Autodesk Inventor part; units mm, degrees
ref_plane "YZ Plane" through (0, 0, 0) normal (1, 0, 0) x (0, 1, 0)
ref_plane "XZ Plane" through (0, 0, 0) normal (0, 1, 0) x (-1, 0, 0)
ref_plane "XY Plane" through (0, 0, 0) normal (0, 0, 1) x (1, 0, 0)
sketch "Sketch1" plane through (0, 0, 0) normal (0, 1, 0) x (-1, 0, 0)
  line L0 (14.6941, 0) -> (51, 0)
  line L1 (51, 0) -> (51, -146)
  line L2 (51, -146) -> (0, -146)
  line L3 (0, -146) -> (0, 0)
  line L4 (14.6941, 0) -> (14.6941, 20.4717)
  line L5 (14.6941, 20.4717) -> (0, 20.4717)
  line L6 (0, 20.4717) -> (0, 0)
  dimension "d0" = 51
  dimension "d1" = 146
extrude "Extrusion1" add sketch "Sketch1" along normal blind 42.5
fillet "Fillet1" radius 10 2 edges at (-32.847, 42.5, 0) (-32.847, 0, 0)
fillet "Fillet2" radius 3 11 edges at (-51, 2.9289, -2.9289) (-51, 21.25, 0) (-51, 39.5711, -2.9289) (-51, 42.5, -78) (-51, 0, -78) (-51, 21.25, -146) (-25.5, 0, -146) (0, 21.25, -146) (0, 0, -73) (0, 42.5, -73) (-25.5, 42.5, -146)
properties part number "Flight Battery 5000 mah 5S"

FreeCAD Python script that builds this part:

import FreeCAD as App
import Part
import Sketcher
from FreeCAD import Vector


def edges_at(feature, points):
    """Names of the edges that pass closest to the given points."""
    edges = feature.Shape.Edges
    near = lambda p: min(range(len(edges)), key=lambda i: edges[i].distToShape(Part.Vertex(*p))[0])
    return sorted({f"Edge{near(p) + 1}" for p in points})

doc = App.newDocument("Part")
body = doc.addObject("PartDesign::Body", "Body")

# Sketch on XZ plane
sketch1 = doc.addObject("Sketcher::SketchObject", "Sketch")
body.addObject(sketch1)
sketch1.AttachmentSupport = (doc.XZ_Plane, [""])
sketch1.MapMode = "FlatFace"
sketch1.addGeometry([
    Part.LineSegment(Vector(-51, 0, 0), Vector(-14.6941, 0, 0)),  # 0
    Part.LineSegment(Vector(-14.6941, 0, 0), Vector(-14.6941, 20.4717, 0)),  # 1
    Part.LineSegment(Vector(-14.6941, 20.4717, 0), Vector(0, 20.4717, 0)),  # 2
    Part.LineSegment(Vector(0, 20.4717, 0), Vector(0, -146, 0)),  # 3
    Part.LineSegment(Vector(0, -146, 0), Vector(-51, -146, 0)),  # 4
    Part.LineSegment(Vector(-51, -146, 0), Vector(-51, 0, 0)),  # 5
], False)
sketch1.addConstraint([
    Sketcher.Constraint("Coincident", 0, 2, 1, 1),
    Sketcher.Constraint("Coincident", 1, 2, 2, 1),
    Sketcher.Constraint("Coincident", 2, 2, 3, 1),
    Sketcher.Constraint("Coincident", 3, 2, 4, 1),
    Sketcher.Constraint("Coincident", 4, 2, 5, 1),
    Sketcher.Constraint("Coincident", 5, 2, 0, 1),
    Sketcher.Constraint("Horizontal", 0),
    Sketcher.Constraint("Vertical", 1),
    Sketcher.Constraint("Horizontal", 2),
    Sketcher.Constraint("Vertical", 3),
    Sketcher.Constraint("Horizontal", 4),
    Sketcher.Constraint("Vertical", 5),
    Sketcher.Constraint("PointOnObject", 0, 2, -1),
    Sketcher.Constraint("PointOnObject", 2, 2, -2),
    Sketcher.Constraint("DistanceX", 4, 2, 4, 1, 51.0),
    Sketcher.Constraint("DistanceY", 5, 1, 5, 2, 146.0),
    Sketcher.Constraint("DistanceX", 0, 1, 0, 2, 36.306),
    Sketcher.Constraint("DistanceY", 1, 1, 1, 2, 20.4717),
])
pad1 = doc.addObject("PartDesign::Pad", "Pad")
body.addObject(pad1)
pad1.Profile = sketch1
pad1.Length = 42.5
pad1.Reversed = True
doc.recompute()

fillet = doc.addObject("PartDesign::Fillet", "Fillet")
body.addObject(fillet)
fillet.Base = (pad1, edges_at(pad1, [(-32.847, 42.5, 0), (-32.847, 0, 0)]))
fillet.Radius = 10
doc.recompute()

fillet2 = doc.addObject("PartDesign::Fillet", "Fillet001")
body.addObject(fillet2)
fillet2.Base = (fillet, edges_at(fillet, [
    (-51, 2.929, -2.929),
    (-51, 21.25, 0),
    (-51, 39.571, -2.929),
    (-51, 42.5, -78),
    (-51, 0, -78),
    (-51, 21.25, -146),
    (-25.5, 0, -146),
    (0, 21.25, -146),
    (0, 0, -73),
    (0, 42.5, -73),
    (-25.5, 42.5, -146),
]))
fillet2.Radius = 3

doc.recompute()
